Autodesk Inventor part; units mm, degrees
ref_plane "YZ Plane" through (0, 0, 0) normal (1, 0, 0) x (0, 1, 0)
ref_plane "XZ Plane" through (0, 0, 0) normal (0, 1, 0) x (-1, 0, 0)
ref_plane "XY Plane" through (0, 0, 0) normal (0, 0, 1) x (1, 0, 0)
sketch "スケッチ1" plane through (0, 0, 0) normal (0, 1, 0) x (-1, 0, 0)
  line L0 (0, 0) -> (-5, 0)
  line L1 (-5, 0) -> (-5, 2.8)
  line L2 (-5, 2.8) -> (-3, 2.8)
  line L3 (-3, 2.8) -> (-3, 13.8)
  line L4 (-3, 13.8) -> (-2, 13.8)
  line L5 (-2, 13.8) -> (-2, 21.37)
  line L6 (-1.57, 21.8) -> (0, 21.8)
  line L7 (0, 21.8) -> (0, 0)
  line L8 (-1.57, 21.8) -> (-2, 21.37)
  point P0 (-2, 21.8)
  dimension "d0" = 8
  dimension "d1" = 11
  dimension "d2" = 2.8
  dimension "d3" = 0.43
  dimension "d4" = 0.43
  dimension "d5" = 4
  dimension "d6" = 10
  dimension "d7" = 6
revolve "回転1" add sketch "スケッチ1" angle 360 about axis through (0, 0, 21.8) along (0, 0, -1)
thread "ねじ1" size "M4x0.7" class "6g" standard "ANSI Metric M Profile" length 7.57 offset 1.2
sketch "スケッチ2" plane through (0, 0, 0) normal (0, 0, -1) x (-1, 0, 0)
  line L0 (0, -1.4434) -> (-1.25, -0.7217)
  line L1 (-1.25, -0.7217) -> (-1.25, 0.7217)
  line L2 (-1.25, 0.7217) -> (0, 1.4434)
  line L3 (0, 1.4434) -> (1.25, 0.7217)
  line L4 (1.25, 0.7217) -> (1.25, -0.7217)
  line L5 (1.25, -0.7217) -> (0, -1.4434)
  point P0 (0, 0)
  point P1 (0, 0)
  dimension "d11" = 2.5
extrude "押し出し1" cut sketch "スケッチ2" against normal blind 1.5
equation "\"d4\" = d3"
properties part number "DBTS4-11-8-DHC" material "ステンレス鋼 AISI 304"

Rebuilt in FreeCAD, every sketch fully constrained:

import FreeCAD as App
import Part
import Sketcher
Q = App.Units.Quantity

doc = App.newDocument("Part")
params = doc.addObject("Spreadsheet::Sheet", "Params")
for row, (alias, value) in enumerate([
    ("sketch1_height", "11 mm"),
    ("sketch1_height2", "2.8 mm"),
    ("sketch1_width", "5 mm"),
    ("sketch1_width2", "1 mm"),
    ("sketch1_width3", "2 mm"),
    ("revolution_angle", "360 deg"),
    ("pocket1_length", "1.5 mm"),
], start=1):
    params.set(f"A{row}", alias)
    params.set(f"B{row}", "=" + value)
    params.setAlias(f"B{row}", alias)

body = doc.addObject("PartDesign::Body", "Body")

sketch1 = doc.addObject("Sketcher::SketchObject", "Sketch")
body.addObject(sketch1)
sketch1.AttachmentSupport = (doc.XZ_Plane, [""])
sketch1.MapMode = "FlatFace"
sketch1.addGeometry([
    Part.LineSegment(App.Vector(5, 0, 0), App.Vector(0, 0, 0)),
    Part.LineSegment(App.Vector(0, 0, 0), App.Vector(0, 21.8, 0)),
    Part.LineSegment(App.Vector(0, 21.8, 0), App.Vector(1.6, 21.8, 0)),
    Part.LineSegment(App.Vector(1.6, 21.8, 0), App.Vector(2, 21.4, 0)),
    Part.LineSegment(App.Vector(2, 21.4, 0), App.Vector(2, 13.8, 0)),
    Part.LineSegment(App.Vector(2, 13.8, 0), App.Vector(3, 13.8, 0)),
    Part.LineSegment(App.Vector(3, 13.8, 0), App.Vector(3, 2.8, 0)),
    Part.LineSegment(App.Vector(3, 2.8, 0), App.Vector(5, 2.8, 0)),
    Part.LineSegment(App.Vector(5, 2.8, 0), App.Vector(5, 0, 0)),
], False)
sketch1.addConstraint([
    Sketcher.Constraint("Coincident", 0, 2, 1, 1),
    Sketcher.Constraint("Coincident", 1, 2, 2, 1),
    Sketcher.Constraint("Coincident", 2, 2, 3, 1),
    Sketcher.Constraint("Coincident", 3, 2, 4, 1),
    Sketcher.Constraint("Coincident", 4, 2, 5, 1),
    Sketcher.Constraint("Coincident", 5, 2, 6, 1),
    Sketcher.Constraint("Coincident", 6, 2, 7, 1),
    Sketcher.Constraint("Coincident", 7, 2, 8, 1),
    Sketcher.Constraint("Coincident", 8, 2, 0, 1),
    Sketcher.Constraint("Horizontal", 0),
    Sketcher.Constraint("Vertical", 1),
    Sketcher.Constraint("Horizontal", 2),
    Sketcher.Constraint("Vertical", 4),
    Sketcher.Constraint("Horizontal", 5),
    Sketcher.Constraint("Vertical", 6),
    Sketcher.Constraint("Horizontal", 7),
    Sketcher.Constraint("Vertical", 8),
    Sketcher.Constraint("Coincident", 0, 2, -1, 1),
    Sketcher.Constraint("DistanceY", 6, 2, 6, 1, 11.0),
    Sketcher.Constraint("DistanceY", 8, 2, 8, 1, 2.8),
    Sketcher.Constraint("DistanceY", 4, 2, 2, 2, 8.0),
    Sketcher.Constraint("DistanceX", 0, 2, 0, 1, 5.0),
    Sketcher.Constraint("DistanceX", 5, 1, 5, 2, 1.0),
    Sketcher.Constraint("DistanceX", 7, 1, 7, 2, 2.0),
    Sketcher.Constraint("Angle", 3, Q("-45 deg")),
    Sketcher.Constraint("DistanceX", 2, 2, 3, 2, 0.43),
])
sketch1.setExpression("Constraints[18]", "Params.sketch1_height")
sketch1.setExpression("Constraints[19]", "Params.sketch1_height2")
sketch1.setExpression("Constraints[21]", "Params.sketch1_width")
sketch1.setExpression("Constraints[22]", "Params.sketch1_width2")
sketch1.setExpression("Constraints[23]", "Params.sketch1_width3")
revolution = doc.addObject("PartDesign::Revolution", "Revolution")
body.addObject(revolution)
revolution.Profile = sketch1
revolution.ReferenceAxis = (sketch1, ["V_Axis"])
revolution.setExpression("Angle", "Params.revolution_angle")

sketch2 = doc.addObject("Sketcher::SketchObject", "Sketch001")
body.addObject(sketch2)
sketch2.AttachmentSupport = (doc.XY_Plane, [""])
sketch2.MapMode = "FlatFace"
sketch2.addGeometry([
    Part.LineSegment(App.Vector(1.2, -0.7, 0), App.Vector(0, -1.4, 0)),
    Part.LineSegment(App.Vector(0, -1.4, 0), App.Vector(-1.2, -0.7, 0)),
    Part.LineSegment(App.Vector(-1.2, -0.7, 0), App.Vector(-1.2, 0.7, 0)),
    Part.LineSegment(App.Vector(-1.2, 0.7, 0), App.Vector(0, 1.4, 0)),
    Part.LineSegment(App.Vector(0, 1.4, 0), App.Vector(1.2, 0.7, 0)),
    Part.LineSegment(App.Vector(1.2, 0.7, 0), App.Vector(1.2, -0.7, 0)),
], False)
sketch2.addConstraint([
    Sketcher.Constraint("Coincident", 0, 2, 1, 1),
    Sketcher.Constraint("Coincident", 1, 2, 2, 1),
    Sketcher.Constraint("Coincident", 2, 2, 3, 1),
    Sketcher.Constraint("Coincident", 3, 2, 4, 1),
    Sketcher.Constraint("Coincident", 4, 2, 5, 1),
    Sketcher.Constraint("Coincident", 5, 2, 0, 1),
    Sketcher.Constraint("Vertical", 2),
    Sketcher.Constraint("Vertical", 5),
    Sketcher.Constraint("Symmetric", 0, 2, 3, 2, -1, 1),
    Sketcher.Constraint("Symmetric", 1, 2, 4, 2, -1, 1),
    Sketcher.Constraint("PointOnObject", 0, 2, -2),
    Sketcher.Constraint("Parallel", 0, 3),
    Sketcher.Constraint("Horizontal", 2, 2, 4, 2),
    Sketcher.Constraint("DistanceX", 2, 2, 4, 2, 2.5),
    Sketcher.Constraint("Angle", 0, Q("-149.9996 deg")),
    Sketcher.Constraint("DistanceY", 2, 1, 2, 2, 1.4434),
])
pocket1 = doc.addObject("PartDesign::Pocket", "Pocket")
body.addObject(pocket1)
pocket1.Profile = sketch2
pocket1.setExpression("Length", "Params.pocket1_length")
pocket1.Reversed = True

doc.recompute()
